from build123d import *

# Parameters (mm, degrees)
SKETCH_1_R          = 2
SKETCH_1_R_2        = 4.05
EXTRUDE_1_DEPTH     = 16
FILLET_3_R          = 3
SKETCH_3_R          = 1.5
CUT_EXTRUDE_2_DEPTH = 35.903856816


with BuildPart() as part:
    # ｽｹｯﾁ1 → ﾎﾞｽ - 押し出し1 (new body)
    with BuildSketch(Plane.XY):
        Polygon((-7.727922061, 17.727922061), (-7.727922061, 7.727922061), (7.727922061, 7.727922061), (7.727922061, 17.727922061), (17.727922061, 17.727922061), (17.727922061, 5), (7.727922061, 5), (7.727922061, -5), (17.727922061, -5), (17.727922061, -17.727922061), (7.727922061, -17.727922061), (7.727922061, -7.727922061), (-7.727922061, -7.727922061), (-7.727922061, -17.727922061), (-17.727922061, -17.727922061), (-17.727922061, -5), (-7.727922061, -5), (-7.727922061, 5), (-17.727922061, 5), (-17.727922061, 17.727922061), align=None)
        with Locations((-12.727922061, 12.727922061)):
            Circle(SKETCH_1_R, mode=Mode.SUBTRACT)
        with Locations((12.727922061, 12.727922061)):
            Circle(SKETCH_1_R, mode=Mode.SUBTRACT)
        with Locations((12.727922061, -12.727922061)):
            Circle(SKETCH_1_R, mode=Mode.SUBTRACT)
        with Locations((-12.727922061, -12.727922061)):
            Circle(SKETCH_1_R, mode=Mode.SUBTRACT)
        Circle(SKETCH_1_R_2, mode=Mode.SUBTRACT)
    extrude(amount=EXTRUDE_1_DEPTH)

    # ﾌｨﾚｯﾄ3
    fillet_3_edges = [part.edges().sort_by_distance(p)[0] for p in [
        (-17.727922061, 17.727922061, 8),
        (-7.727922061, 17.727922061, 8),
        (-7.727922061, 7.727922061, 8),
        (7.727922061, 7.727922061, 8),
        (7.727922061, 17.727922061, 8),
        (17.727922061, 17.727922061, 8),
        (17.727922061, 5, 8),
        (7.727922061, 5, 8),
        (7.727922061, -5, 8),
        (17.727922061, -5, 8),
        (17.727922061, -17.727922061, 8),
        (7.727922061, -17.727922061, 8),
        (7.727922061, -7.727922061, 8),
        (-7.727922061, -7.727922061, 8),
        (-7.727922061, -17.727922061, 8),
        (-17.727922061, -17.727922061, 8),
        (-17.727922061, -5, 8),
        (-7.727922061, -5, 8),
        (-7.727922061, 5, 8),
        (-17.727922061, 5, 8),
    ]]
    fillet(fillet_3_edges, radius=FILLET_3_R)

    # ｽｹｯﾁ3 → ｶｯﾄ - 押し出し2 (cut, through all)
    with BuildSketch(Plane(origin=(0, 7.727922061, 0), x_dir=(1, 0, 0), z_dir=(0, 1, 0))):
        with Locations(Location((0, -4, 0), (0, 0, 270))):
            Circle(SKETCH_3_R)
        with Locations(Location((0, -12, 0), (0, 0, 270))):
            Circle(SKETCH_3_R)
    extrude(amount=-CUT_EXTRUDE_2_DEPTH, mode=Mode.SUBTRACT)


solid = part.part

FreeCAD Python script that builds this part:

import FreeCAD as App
import Part
import Sketcher

V = App.Vector
Q = App.Units.Quantity


def edges_at(feature, points):
    """Names of the edges that pass closest to the given points."""
    edges = feature.Shape.Edges
    near = lambda p: min(range(len(edges)), key=lambda i: edges[i].distToShape(Part.Vertex(*p))[0])
    return sorted({f"Edge{near(p) + 1}" for p in points})

doc = App.newDocument("Part")
body = doc.addObject("PartDesign::Body", "Body")

sketch1 = doc.addObject("Sketcher::SketchObject", "Sketch")
body.addObject(sketch1)
sketch1.AttachmentSupport = (doc.XY_Plane, [""])
sketch1.MapMode = "FlatFace"
sketch1.addGeometry(Part.LineSegment(V(-7.7, 7.7, 0), V(-7.7, 17.7, 0)), False)
sketch1.addGeometry(Part.LineSegment(V(-7.7, 17.7, 0), V(-17.7, 17.7, 0)), False)
sketch1.addGeometry(Part.LineSegment(V(-17.7, 17.7, 0), V(-17.7, 5, 0)), False)
sketch1.addGeometry(Part.LineSegment(V(-17.7, 5, 0), V(-7.7, 5, 0)), False)
sketch1.addGeometry(Part.LineSegment(V(-7.7, 5, 0), V(-7.7, -5, 0)), False)
sketch1.addGeometry(Part.LineSegment(V(-7.7, -5, 0), V(-17.7, -5, 0)), False)
sketch1.addGeometry(Part.LineSegment(V(-17.7, -5, 0), V(-17.7, -17.7, 0)), False)
sketch1.addGeometry(Part.LineSegment(V(-17.7, -17.7, 0), V(-7.7, -17.7, 0)), False)
sketch1.addGeometry(Part.LineSegment(V(-7.7, -17.7, 0), V(-7.7, -7.7, 0)), False)
sketch1.addGeometry(Part.LineSegment(V(-7.7, -7.7, 0), V(7.7, -7.7, 0)), False)
sketch1.addGeometry(Part.LineSegment(V(7.7, -7.7, 0), V(7.7, -17.7, 0)), False)
sketch1.addGeometry(Part.LineSegment(V(7.7, -17.7, 0), V(17.7, -17.7, 0)), False)
sketch1.addGeometry(Part.LineSegment(V(17.7, -17.7, 0), V(17.7, -5, 0)), False)
sketch1.addGeometry(Part.LineSegment(V(17.7, -5, 0), V(7.7, -5, 0)), False)
sketch1.addGeometry(Part.LineSegment(V(7.7, -5, 0), V(7.7, 5, 0)), False)
sketch1.addGeometry(Part.LineSegment(V(7.7, 5, 0), V(17.7, 5, 0)), False)
sketch1.addGeometry(Part.LineSegment(V(17.7, 5, 0), V(17.7, 17.7, 0)), False)
sketch1.addGeometry(Part.LineSegment(V(17.7, 17.7, 0), V(7.7, 17.7, 0)), False)
sketch1.addGeometry(Part.LineSegment(V(7.7, 17.7, 0), V(7.7, 7.7, 0)), False)
sketch1.addGeometry(Part.LineSegment(V(7.7, 7.7, 0), V(-7.7, 7.7, 0)), False)
sketch1.addGeometry(Part.Circle(V(12.7, -12.7, 0), V(0, 0, 1), 2), False)
sketch1.addGeometry(Part.Circle(V(-12.7, -12.7, 0), V(0, 0, 1), 2), False)
sketch1.addGeometry(Part.Circle(V(12.7, 12.7, 0), V(0, 0, 1), 2), False)
sketch1.addGeometry(Part.Circle(V(0, 0, 0), V(0, 0, 1), 4), False)
sketch1.addGeometry(Part.Circle(V(-12.7, 12.7, 0), V(0, 0, 1), 2), False)
sketch1.addConstraint(Sketcher.Constraint("Coincident", 0, 2, 1, 1))
sketch1.addConstraint(Sketcher.Constraint("Coincident", 1, 2, 2, 1))
sketch1.addConstraint(Sketcher.Constraint("Coincident", 2, 2, 3, 1))
sketch1.addConstraint(Sketcher.Constraint("Coincident", 3, 2, 4, 1))
sketch1.addConstraint(Sketcher.Constraint("Coincident", 4, 2, 5, 1))
sketch1.addConstraint(Sketcher.Constraint("Coincident", 5, 2, 6, 1))
sketch1.addConstraint(Sketcher.Constraint("Coincident", 6, 2, 7, 1))
sketch1.addConstraint(Sketcher.Constraint("Coincident", 7, 2, 8, 1))
sketch1.addConstraint(Sketcher.Constraint("Coincident", 8, 2, 9, 1))
sketch1.addConstraint(Sketcher.Constraint("Coincident", 9, 2, 10, 1))
sketch1.addConstraint(Sketcher.Constraint("Coincident", 10, 2, 11, 1))
sketch1.addConstraint(Sketcher.Constraint("Coincident", 11, 2, 12, 1))
sketch1.addConstraint(Sketcher.Constraint("Coincident", 12, 2, 13, 1))
sketch1.addConstraint(Sketcher.Constraint("Coincident", 13, 2, 14, 1))
sketch1.addConstraint(Sketcher.Constraint("Coincident", 14, 2, 15, 1))
sketch1.addConstraint(Sketcher.Constraint("Coincident", 15, 2, 16, 1))
sketch1.addConstraint(Sketcher.Constraint("Coincident", 16, 2, 17, 1))
sketch1.addConstraint(Sketcher.Constraint("Coincident", 17, 2, 18, 1))
sketch1.addConstraint(Sketcher.Constraint("Coincident", 18, 2, 19, 1))
sketch1.addConstraint(Sketcher.Constraint("Coincident", 19, 2, 0, 1))
sketch1.addConstraint(Sketcher.Constraint("Vertical", 0))
sketch1.addConstraint(Sketcher.Constraint("Horizontal", 1))
sketch1.addConstraint(Sketcher.Constraint("Vertical", 2))
sketch1.addConstraint(Sketcher.Constraint("Horizontal", 3))
sketch1.addConstraint(Sketcher.Constraint("Vertical", 4))
sketch1.addConstraint(Sketcher.Constraint("Horizontal", 5))
sketch1.addConstraint(Sketcher.Constraint("Vertical", 6))
sketch1.addConstraint(Sketcher.Constraint("Horizontal", 7))
sketch1.addConstraint(Sketcher.Constraint("Vertical", 8))
sketch1.addConstraint(Sketcher.Constraint("Horizontal", 9))
sketch1.addConstraint(Sketcher.Constraint("Vertical", 10))
sketch1.addConstraint(Sketcher.Constraint("Horizontal", 11))
sketch1.addConstraint(Sketcher.Constraint("Vertical", 12))
sketch1.addConstraint(Sketcher.Constraint("Horizontal", 13))
sketch1.addConstraint(Sketcher.Constraint("Vertical", 14))
sketch1.addConstraint(Sketcher.Constraint("Horizontal", 15))
sketch1.addConstraint(Sketcher.Constraint("Vertical", 16))
sketch1.addConstraint(Sketcher.Constraint("Horizontal", 17))
sketch1.addConstraint(Sketcher.Constraint("Vertical", 18))
sketch1.addConstraint(Sketcher.Constraint("Horizontal", 19))
sketch1.addConstraint(Sketcher.Constraint("Coincident", 23, 3, -1, 1))
sketch1.addConstraint(Sketcher.Constraint("Equal", 20, 21))
sketch1.addConstraint(Sketcher.Constraint("Equal", 21, 22))
sketch1.addConstraint(Sketcher.Constraint("Equal", 22, 24))
sketch1.addConstraint(Sketcher.Constraint("Symmetric", 21, 3, 22, 3, -1, 1))
sketch1.addConstraint(Sketcher.Constraint("Symmetric", 20, 3, 24, 3, -1, 1))
sketch1.addConstraint(Sketcher.Constraint("Symmetric", 0, 2, 10, 2, -1, 1))
sketch1.addConstraint(Sketcher.Constraint("Symmetric", 2, 2, 12, 2, -1, 1))
sketch1.addConstraint(Sketcher.Constraint("Symmetric", 4, 2, 14, 2, -1, 1))
sketch1.addConstraint(Sketcher.Constraint("Symmetric", 6, 2, 16, 2, -1, 1))
sketch1.addConstraint(Sketcher.Constraint("Symmetric", 8, 2, 18, 2, -1, 1))
sketch1.addConstraint(Sketcher.Constraint("Symmetric", 20, 3, 21, 3, -2))
sketch1.addConstraint(Sketcher.Constraint("Symmetric", 7, 2, 10, 2, -2))
sketch1.addConstraint(Sketcher.Constraint("Symmetric", 5, 2, 12, 2, -2))
sketch1.addConstraint(Sketcher.Constraint("Vertical", 0, 2, 3, 2))
sketch1.addConstraint(Sketcher.Constraint("Equal", 17, 0))
sketch1.addConstraint(Sketcher.Constraint("Equal", 0, 4))
sketch1.addConstraint(Sketcher.Constraint("Diameter", 20, Q("4 mm")))
sketch1.addConstraint(Sketcher.Constraint("Diameter", 23, Q("8.1 mm")))
sketch1.addConstraint(Sketcher.Constraint("DistanceX", 1, 2, 1, 1, Q("10 mm")))
sketch1.addConstraint(Sketcher.Constraint("DistanceX", 24, 3, 0, 2, Q("5 mm")))
sketch1.addConstraint(Sketcher.Constraint("DistanceY", 24, 3, 0, 2, Q("5 mm")))
sketch1.addConstraint(Sketcher.Constraint("DistanceX", 9, 1, 9, 2, Q("15.455844 mm")))
sketch1.addConstraint(Sketcher.Constraint("DistanceY", 2, 2, 2, 1, Q("12.727922 mm")))
pad1 = doc.addObject("PartDesign::Pad", "Pad")
body.addObject(pad1)
pad1.Profile = sketch1
pad1.Length = 16
doc.recompute()

fillet = doc.addObject("PartDesign::Fillet", "Fillet")
body.addObject(fillet)
fillet.Base = (pad1, edges_at(pad1, [
    (-17.728, 17.728, 8),
    (-7.728, 17.728, 8),
    (-7.728, 7.728, 8),
    (7.728, 7.728, 8),
    (7.728, 17.728, 8),
    (17.728, 17.728, 8),
    (17.728, 5, 8),
    (7.728, 5, 8),
    (7.728, -5, 8),
    (17.728, -5, 8),
    (17.728, -17.728, 8),
    (7.728, -17.728, 8),
    (7.728, -7.728, 8),
    (-7.728, -7.728, 8),
    (-7.728, -17.728, 8),
    (-17.728, -17.728, 8),
    (-17.728, -5, 8),
    (-7.728, -5, 8),
    (-7.728, 5, 8),
    (-17.728, 5, 8),
]))
fillet.Radius = 3

sketch2 = doc.addObject("Sketcher::SketchObject", "Sketch001")
body.addObject(sketch2)
sketch2.AttachmentSupport = (doc.XZ_Plane, [""])
sketch2.MapMode = "FlatFace"
sketch2.AttachmentOffset = App.Placement(V(0, 0, -7.727922), App.Rotation())
sketch2.addGeometry(Part.Circle(V(0, 4, 0), V(0, 0, 1), 1.5), False)
sketch2.addGeometry(Part.Circle(V(0, 12, 0), V(0, 0, 1), 1.5), False)
sketch2.addConstraint(Sketcher.Constraint("Equal", 0, 1))
sketch2.addConstraint(Sketcher.Constraint("PointOnObject", 0, 3, -2))
sketch2.addConstraint(Sketcher.Constraint("PointOnObject", 1, 3, -2))
sketch2.addConstraint(Sketcher.Constraint("Diameter", 0, Q("3 mm")))
sketch2.addConstraint(Sketcher.Constraint("DistanceY", -1, 1, 0, 3, Q("4 mm")))
sketch2.addConstraint(Sketcher.Constraint("DistanceY", -1, 1, 1, 3, Q("12 mm")))
pocket1 = doc.addObject("PartDesign::Pocket", "Pocket")
body.addObject(pocket1)
pocket1.Profile = sketch2
pocket1.Type = "ThroughAll"
pocket1.Reversed = True

doc.recompute()
